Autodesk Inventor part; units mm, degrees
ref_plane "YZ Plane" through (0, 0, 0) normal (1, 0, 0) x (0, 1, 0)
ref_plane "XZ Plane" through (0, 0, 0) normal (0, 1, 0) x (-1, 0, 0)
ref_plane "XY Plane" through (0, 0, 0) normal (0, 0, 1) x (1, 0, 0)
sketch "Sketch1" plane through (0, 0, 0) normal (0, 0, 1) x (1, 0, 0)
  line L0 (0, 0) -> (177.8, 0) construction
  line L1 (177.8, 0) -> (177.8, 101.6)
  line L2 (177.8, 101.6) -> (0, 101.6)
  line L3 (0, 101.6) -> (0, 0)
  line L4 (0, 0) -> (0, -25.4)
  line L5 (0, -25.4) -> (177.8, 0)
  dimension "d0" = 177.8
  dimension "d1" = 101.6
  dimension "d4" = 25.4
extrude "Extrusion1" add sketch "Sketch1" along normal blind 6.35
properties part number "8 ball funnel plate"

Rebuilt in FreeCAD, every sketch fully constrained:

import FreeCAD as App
import Part
import Sketcher
Q = App.Units.Quantity


def add_polygon(sketch, points):
    """Adds a closed chain of lines whose ends are joined by coincident constraints."""
    first, n = sketch.GeometryCount, len(points)
    for a, b in zip(points, points[1:] + points[:1]):
        sketch.addGeometry(Part.LineSegment(App.Vector(*a, 0), App.Vector(*b, 0)), False)
    for i in range(n):
        sketch.addConstraint(Sketcher.Constraint("Coincident", first + i, 2, first + (i + 1) % n, 1))

doc = App.newDocument("Part")
body = doc.addObject("PartDesign::Body", "Body")

# Sketch on XY plane
sketch1 = doc.addObject("Sketcher::SketchObject", "Sketch")
body.addObject(sketch1)
sketch1.AttachmentSupport = (doc.XY_Plane, [""])
sketch1.MapMode = "FlatFace"
add_polygon(sketch1, [(0, -25.4), (177.8, 0), (177.8, 101.6), (0, 101.6)])  # lines 0-3
sketch1.addConstraint(Sketcher.Constraint("Vertical", 1))
sketch1.addConstraint(Sketcher.Constraint("Horizontal", 2))
sketch1.addConstraint(Sketcher.Constraint("Vertical", 3))
sketch1.addConstraint(Sketcher.Constraint("PointOnObject", 0, 2, -1))
sketch1.addConstraint(Sketcher.Constraint("PointOnObject", 2, 2, -2))
sketch1.addConstraint(Sketcher.Constraint("DistanceX", 2, 2, 2, 1, Q("7 in")))
sketch1.addConstraint(Sketcher.Constraint("DistanceY", 1, 1, 1, 2, Q("4 in")))
sketch1.addConstraint(Sketcher.Constraint("DistanceY", 3, 2, -1, 1, Q("1 in")))
pad1 = doc.addObject("PartDesign::Pad", "Pad")
body.addObject(pad1)
pad1.Profile = sketch1
pad1.Length = Q("0.25 in")

doc.recompute()
